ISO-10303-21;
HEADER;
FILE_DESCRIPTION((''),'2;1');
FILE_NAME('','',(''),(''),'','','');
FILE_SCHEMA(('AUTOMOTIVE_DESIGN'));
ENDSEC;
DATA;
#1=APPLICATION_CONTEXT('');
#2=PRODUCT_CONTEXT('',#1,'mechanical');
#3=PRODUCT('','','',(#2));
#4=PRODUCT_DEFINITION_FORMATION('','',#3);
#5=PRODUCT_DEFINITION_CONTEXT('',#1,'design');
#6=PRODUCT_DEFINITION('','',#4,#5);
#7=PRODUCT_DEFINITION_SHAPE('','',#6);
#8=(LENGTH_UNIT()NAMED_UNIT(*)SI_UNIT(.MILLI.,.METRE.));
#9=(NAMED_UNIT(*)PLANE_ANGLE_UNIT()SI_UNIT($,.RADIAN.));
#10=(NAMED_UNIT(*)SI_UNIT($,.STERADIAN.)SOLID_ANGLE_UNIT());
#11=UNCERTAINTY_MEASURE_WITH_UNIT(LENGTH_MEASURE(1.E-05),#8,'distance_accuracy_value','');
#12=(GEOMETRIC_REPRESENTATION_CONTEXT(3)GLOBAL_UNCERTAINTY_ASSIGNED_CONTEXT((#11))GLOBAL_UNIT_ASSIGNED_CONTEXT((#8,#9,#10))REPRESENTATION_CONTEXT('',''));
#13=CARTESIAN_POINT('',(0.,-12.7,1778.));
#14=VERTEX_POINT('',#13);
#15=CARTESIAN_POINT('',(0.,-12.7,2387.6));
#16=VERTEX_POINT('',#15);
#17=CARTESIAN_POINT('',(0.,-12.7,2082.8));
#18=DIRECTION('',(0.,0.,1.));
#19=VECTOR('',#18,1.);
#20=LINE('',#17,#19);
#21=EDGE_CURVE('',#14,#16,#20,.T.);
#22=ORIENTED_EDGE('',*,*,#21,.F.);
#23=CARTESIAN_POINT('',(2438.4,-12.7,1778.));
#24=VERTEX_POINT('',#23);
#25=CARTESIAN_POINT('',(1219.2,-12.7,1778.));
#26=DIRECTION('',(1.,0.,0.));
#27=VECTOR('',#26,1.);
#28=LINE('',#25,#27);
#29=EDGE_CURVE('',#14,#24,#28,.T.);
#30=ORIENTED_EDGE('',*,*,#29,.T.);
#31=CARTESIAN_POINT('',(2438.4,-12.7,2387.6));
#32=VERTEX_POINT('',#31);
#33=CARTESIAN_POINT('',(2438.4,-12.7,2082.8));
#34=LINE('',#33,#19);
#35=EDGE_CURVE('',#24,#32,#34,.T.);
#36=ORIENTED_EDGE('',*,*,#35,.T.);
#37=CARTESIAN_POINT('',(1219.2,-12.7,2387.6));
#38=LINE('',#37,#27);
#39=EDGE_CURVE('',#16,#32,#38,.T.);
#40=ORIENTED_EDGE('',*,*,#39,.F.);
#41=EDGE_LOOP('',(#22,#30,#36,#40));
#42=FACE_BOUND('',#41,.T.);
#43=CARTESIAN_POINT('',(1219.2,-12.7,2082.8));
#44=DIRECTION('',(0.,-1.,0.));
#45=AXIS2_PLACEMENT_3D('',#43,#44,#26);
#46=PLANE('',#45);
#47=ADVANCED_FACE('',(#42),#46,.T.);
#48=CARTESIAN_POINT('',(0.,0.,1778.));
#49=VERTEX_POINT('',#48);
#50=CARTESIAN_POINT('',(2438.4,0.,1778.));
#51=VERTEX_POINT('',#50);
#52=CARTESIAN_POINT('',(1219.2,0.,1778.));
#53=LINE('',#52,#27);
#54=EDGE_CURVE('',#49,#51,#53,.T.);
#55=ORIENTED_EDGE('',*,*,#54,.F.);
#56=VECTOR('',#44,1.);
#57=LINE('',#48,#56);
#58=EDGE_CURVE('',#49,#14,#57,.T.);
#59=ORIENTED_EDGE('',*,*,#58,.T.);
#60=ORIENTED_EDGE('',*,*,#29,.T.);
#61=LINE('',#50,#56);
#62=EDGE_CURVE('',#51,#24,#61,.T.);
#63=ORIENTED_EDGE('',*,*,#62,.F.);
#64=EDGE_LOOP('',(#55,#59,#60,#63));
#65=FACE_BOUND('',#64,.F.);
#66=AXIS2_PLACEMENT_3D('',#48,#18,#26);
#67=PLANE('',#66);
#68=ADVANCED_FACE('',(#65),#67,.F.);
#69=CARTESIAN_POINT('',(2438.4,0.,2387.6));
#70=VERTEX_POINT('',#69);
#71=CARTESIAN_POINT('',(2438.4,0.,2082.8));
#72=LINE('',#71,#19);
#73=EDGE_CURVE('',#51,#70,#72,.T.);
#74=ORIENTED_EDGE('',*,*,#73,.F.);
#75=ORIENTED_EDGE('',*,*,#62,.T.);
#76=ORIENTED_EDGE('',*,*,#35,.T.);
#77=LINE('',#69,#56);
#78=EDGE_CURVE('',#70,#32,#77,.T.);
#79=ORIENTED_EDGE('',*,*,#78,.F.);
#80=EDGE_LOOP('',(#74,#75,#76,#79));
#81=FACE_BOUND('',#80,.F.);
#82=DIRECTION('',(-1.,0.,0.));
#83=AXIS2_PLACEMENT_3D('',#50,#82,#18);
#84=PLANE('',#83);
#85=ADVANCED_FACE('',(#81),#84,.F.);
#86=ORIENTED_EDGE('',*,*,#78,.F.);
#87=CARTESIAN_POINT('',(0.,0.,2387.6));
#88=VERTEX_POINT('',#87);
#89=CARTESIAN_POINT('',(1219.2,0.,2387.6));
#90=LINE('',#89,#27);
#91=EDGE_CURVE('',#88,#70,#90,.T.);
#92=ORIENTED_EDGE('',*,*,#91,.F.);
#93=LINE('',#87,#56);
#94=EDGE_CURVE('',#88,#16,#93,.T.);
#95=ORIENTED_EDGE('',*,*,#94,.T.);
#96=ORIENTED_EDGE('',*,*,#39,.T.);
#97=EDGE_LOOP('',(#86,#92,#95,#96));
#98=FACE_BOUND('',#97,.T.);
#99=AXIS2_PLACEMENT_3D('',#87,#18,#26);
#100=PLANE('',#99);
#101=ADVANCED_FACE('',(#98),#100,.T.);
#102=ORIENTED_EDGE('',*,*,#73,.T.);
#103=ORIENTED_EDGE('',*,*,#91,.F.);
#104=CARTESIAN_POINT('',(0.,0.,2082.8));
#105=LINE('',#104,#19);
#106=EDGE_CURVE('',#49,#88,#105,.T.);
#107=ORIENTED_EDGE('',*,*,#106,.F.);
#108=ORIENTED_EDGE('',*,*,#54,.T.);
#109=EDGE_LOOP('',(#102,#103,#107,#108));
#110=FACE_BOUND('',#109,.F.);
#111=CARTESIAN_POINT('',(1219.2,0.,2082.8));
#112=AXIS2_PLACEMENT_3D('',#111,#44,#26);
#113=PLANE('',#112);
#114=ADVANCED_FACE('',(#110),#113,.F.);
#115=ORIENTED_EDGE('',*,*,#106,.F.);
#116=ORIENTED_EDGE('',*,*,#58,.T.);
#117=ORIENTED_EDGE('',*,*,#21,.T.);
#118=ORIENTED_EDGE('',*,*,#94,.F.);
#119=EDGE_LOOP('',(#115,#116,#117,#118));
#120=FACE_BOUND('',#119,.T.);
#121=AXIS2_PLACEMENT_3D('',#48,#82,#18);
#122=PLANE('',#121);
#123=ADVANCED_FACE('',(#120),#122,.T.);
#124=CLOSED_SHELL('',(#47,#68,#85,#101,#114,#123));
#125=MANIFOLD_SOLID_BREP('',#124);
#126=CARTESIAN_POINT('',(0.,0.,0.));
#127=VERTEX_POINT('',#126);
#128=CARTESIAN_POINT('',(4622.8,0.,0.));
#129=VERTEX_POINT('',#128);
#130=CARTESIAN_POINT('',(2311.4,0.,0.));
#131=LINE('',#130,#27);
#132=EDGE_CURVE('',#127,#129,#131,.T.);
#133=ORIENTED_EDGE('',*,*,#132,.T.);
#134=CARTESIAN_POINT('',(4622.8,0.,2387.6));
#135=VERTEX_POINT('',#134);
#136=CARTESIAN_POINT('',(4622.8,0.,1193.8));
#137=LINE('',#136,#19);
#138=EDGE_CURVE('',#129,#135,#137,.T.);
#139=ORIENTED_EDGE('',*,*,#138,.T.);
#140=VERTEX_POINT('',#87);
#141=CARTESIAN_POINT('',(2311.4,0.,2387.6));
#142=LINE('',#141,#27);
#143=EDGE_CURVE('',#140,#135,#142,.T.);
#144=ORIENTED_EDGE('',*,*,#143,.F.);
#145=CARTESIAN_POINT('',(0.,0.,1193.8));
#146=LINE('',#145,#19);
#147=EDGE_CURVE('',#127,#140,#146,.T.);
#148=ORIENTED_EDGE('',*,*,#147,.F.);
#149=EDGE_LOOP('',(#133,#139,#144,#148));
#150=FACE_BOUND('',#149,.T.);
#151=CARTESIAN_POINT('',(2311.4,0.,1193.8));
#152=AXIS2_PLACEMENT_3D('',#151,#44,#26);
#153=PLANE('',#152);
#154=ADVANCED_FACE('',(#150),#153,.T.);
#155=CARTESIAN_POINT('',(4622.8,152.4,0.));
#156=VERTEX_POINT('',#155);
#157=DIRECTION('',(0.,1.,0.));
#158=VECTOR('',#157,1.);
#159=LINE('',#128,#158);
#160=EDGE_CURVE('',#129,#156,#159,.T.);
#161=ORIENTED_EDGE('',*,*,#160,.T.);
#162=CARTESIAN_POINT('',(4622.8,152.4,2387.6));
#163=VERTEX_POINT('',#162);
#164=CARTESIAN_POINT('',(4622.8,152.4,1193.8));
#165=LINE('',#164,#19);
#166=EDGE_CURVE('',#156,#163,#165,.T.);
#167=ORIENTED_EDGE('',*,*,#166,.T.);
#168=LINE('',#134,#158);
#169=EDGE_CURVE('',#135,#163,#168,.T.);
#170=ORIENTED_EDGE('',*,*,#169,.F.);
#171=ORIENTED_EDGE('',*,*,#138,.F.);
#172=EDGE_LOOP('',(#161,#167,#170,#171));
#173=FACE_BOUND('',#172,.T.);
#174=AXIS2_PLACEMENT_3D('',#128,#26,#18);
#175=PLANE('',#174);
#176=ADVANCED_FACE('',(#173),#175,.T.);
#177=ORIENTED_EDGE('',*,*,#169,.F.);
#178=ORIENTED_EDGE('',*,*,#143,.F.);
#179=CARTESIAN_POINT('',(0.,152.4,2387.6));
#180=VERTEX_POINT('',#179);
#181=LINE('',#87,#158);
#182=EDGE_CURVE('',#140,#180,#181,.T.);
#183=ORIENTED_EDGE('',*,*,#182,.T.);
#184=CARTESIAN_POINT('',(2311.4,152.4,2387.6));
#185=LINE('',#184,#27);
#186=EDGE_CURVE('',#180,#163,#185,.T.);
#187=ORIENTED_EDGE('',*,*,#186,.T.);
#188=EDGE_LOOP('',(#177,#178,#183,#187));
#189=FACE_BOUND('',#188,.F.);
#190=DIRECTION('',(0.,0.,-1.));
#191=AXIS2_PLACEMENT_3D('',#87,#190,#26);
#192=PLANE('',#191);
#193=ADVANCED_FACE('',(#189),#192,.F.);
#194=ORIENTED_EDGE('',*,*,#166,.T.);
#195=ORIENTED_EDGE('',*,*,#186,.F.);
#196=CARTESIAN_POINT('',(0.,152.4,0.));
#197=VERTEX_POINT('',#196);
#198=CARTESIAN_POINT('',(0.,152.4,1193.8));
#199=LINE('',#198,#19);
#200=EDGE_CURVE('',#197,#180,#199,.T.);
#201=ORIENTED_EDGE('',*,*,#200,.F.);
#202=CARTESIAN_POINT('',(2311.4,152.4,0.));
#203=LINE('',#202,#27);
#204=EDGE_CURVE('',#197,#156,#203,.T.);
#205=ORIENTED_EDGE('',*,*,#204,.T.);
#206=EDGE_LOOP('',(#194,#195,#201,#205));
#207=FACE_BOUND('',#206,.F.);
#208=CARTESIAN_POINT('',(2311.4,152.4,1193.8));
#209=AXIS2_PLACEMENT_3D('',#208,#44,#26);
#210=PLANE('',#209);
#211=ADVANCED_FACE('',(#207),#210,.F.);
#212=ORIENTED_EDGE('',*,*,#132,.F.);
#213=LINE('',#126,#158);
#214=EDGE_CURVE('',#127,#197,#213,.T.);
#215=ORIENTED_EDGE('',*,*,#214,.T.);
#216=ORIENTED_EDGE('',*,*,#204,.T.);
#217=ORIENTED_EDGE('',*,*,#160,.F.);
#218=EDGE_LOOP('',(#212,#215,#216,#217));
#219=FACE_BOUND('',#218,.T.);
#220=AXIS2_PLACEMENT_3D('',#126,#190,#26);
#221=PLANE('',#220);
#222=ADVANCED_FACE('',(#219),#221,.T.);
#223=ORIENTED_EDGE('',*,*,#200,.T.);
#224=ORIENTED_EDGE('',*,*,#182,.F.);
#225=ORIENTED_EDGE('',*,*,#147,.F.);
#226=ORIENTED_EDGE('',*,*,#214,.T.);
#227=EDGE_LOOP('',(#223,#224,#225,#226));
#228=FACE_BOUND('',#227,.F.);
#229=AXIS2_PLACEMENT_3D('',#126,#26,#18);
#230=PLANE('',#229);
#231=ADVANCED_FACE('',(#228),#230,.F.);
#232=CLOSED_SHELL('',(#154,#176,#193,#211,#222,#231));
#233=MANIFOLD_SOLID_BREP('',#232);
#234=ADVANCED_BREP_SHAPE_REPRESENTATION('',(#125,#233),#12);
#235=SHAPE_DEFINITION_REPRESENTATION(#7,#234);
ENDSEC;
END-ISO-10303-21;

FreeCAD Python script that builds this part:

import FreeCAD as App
import Part
import Sketcher
from FreeCAD import Vector
Q = App.Units.Quantity

doc = App.newDocument("Part")
body = doc.addObject("PartDesign::Body", "Body")

sketch1 = body.newObject("Sketcher::SketchObject", "Sketch")
sketch1.AttachmentSupport = (doc.getObject("XZ_Plane"), [""])
sketch1.MapMode = "FlatFace"
sketch1.addGeometry(Part.LineSegment(Vector(0, 2388, 0), Vector(0, 0, 0)), False)
sketch1.addGeometry(Part.LineSegment(Vector(0, 0, 0), Vector(4623, 0, 0)), False)
sketch1.addGeometry(Part.LineSegment(Vector(4623, 0, 0), Vector(4623, 2388, 0)), False)
sketch1.addGeometry(Part.LineSegment(Vector(4623, 2388, 0), Vector(0, 2388, 0)), False)
sketch1.addConstraint(Sketcher.Constraint("Coincident", 0, 2, 1, 1))
sketch1.addConstraint(Sketcher.Constraint("Coincident", 1, 2, 2, 1))
sketch1.addConstraint(Sketcher.Constraint("Coincident", 2, 2, 3, 1))
sketch1.addConstraint(Sketcher.Constraint("Coincident", 3, 2, 0, 1))
sketch1.addConstraint(Sketcher.Constraint("Vertical", 0))
sketch1.addConstraint(Sketcher.Constraint("Horizontal", 1))
sketch1.addConstraint(Sketcher.Constraint("Vertical", 2))
sketch1.addConstraint(Sketcher.Constraint("Horizontal", 3))
sketch1.addConstraint(Sketcher.Constraint("Coincident", 0, 2, -1, 1))
sketch1.addConstraint(Sketcher.Constraint("DistanceX", 1, 1, 1, 2, Q("182 in")))
sketch1.addConstraint(Sketcher.Constraint("DistanceY", 0, 2, 0, 1, Q("94 in")))
pad1 = body.newObject("PartDesign::Pad", "Pad")
pad1.Profile = sketch1
pad1.Length = Q("6 in")
pad1.Reversed = True
body2 = doc.addObject("PartDesign::Body", "Body001")

sketch2 = body2.newObject("Sketcher::SketchObject", "Sketch001")
sketch2.AttachmentSupport = (doc.getObject("XZ_Plane001"), [""])
sketch2.MapMode = "FlatFace"
sketch2.addGeometry(Part.LineSegment(Vector(0, 2388, 0), Vector(0, 1778, 0)), False)
sketch2.addGeometry(Part.LineSegment(Vector(0, 1778, 0), Vector(2438, 1778, 0)), False)
sketch2.addGeometry(Part.LineSegment(Vector(2438, 1778, 0), Vector(2438, 2388, 0)), False)
sketch2.addGeometry(Part.LineSegment(Vector(2438, 2388, 0), Vector(0, 2388, 0)), False)
sketch2.addConstraint(Sketcher.Constraint("Coincident", 0, 2, 1, 1))
sketch2.addConstraint(Sketcher.Constraint("Coincident", 1, 2, 2, 1))
sketch2.addConstraint(Sketcher.Constraint("Coincident", 2, 2, 3, 1))
sketch2.addConstraint(Sketcher.Constraint("Coincident", 3, 2, 0, 1))
sketch2.addConstraint(Sketcher.Constraint("Vertical", 0))
sketch2.addConstraint(Sketcher.Constraint("Horizontal", 1))
sketch2.addConstraint(Sketcher.Constraint("Vertical", 2))
sketch2.addConstraint(Sketcher.Constraint("Horizontal", 3))
sketch2.addConstraint(Sketcher.Constraint("PointOnObject", 0, 2, -2))
sketch2.addConstraint(Sketcher.Constraint("DistanceX", 1, 1, 1, 2, Q("96 in")))
sketch2.addConstraint(Sketcher.Constraint("DistanceY", 0, 2, 0, 1, Q("24 in")))
sketch2.addConstraint(Sketcher.Constraint("DistanceY", -1, 1, 0, 2, Q("70 in")))
pad2 = body2.newObject("PartDesign::Pad", "Pad001")
pad2.Profile = sketch2
pad2.Length = Q("0.5 in")

doc.recompute()
